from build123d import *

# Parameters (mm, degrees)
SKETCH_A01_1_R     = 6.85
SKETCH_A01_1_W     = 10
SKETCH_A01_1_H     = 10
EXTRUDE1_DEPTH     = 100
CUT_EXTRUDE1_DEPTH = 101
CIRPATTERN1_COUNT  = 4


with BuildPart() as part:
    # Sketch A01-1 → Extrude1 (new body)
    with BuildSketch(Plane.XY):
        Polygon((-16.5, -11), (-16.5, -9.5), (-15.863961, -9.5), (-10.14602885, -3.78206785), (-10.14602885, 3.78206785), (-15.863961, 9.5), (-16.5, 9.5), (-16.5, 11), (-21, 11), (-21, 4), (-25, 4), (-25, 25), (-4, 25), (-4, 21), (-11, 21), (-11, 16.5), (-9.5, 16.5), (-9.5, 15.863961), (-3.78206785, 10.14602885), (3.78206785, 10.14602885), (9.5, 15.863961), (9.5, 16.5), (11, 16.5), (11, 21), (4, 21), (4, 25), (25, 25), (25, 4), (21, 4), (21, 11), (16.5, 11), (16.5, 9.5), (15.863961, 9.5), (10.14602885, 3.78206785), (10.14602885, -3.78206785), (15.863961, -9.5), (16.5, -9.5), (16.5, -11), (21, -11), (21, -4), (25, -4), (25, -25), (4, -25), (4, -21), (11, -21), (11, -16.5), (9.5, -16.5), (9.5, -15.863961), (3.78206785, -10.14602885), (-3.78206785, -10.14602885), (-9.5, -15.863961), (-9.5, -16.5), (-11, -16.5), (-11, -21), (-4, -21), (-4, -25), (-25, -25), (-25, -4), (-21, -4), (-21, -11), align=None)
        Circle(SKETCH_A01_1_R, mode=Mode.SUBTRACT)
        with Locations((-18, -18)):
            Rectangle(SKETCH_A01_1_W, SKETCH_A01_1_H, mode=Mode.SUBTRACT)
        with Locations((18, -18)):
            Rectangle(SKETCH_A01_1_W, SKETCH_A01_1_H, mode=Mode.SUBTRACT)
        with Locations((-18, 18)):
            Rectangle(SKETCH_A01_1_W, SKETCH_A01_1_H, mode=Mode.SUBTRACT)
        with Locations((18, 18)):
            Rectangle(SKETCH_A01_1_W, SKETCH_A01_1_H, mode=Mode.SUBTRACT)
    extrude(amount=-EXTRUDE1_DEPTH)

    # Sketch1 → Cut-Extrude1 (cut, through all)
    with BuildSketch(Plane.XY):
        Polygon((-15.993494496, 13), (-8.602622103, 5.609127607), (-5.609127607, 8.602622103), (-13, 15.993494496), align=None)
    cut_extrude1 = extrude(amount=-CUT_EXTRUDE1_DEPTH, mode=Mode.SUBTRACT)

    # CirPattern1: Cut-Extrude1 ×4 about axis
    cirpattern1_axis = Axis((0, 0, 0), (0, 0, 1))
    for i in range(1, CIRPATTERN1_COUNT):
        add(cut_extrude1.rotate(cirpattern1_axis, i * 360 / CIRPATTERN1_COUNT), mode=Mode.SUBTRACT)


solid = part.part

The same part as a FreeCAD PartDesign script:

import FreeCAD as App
import Part
import Sketcher
Q = App.Units.Quantity

doc = App.newDocument("Part")
body = doc.addObject("PartDesign::Body", "Body")

sketch1 = body.newObject("Sketcher::SketchObject", "Sketch")
sketch1.AttachmentSupport = (doc.getObject("XY_Plane"), [""])
sketch1.MapMode = "FlatFace"
sketch1.addGeometry([
    Part.LineSegment(App.Vector(-16.5, -9.5, 0), App.Vector(-16.5, -11, 0)),
    Part.LineSegment(App.Vector(-16.5, -11, 0), App.Vector(-21, -11, 0)),
    Part.LineSegment(App.Vector(-21, -11, 0), App.Vector(-21, -4, 0)),
    Part.LineSegment(App.Vector(-21, -4, 0), App.Vector(-25, -4, 0)),
    Part.LineSegment(App.Vector(-25, -4, 0), App.Vector(-25, -25, 0)),
    Part.LineSegment(App.Vector(-25, -25, 0), App.Vector(-4, -25, 0)),
    Part.LineSegment(App.Vector(-4, -25, 0), App.Vector(-4, -21, 0)),
    Part.LineSegment(App.Vector(-4, -21, 0), App.Vector(-11, -21, 0)),
    Part.LineSegment(App.Vector(-11, -21, 0), App.Vector(-11, -16.5, 0)),
    Part.LineSegment(App.Vector(-11, -16.5, 0), App.Vector(-9.5, -16.5, 0)),
    Part.LineSegment(App.Vector(-9.5, -16.5, 0), App.Vector(-9.5, -15.9, 0)),
    Part.LineSegment(App.Vector(-9.5, -15.9, 0), App.Vector(-3.8, -10.1, 0)),
    Part.LineSegment(App.Vector(-3.8, -10.1, 0), App.Vector(3.8, -10.1, 0)),
    Part.LineSegment(App.Vector(3.8, -10.1, 0), App.Vector(9.5, -15.9, 0)),
    Part.LineSegment(App.Vector(9.5, -15.9, 0), App.Vector(9.5, -16.5, 0)),
    Part.LineSegment(App.Vector(9.5, -16.5, 0), App.Vector(11, -16.5, 0)),
    Part.LineSegment(App.Vector(11, -16.5, 0), App.Vector(11, -21, 0)),
    Part.LineSegment(App.Vector(11, -21, 0), App.Vector(4, -21, 0)),
    Part.LineSegment(App.Vector(4, -21, 0), App.Vector(4, -25, 0)),
    Part.LineSegment(App.Vector(4, -25, 0), App.Vector(25, -25, 0)),
    Part.LineSegment(App.Vector(25, -25, 0), App.Vector(25, -4, 0)),
    Part.LineSegment(App.Vector(25, -4, 0), App.Vector(21, -4, 0)),
    Part.LineSegment(App.Vector(21, -4, 0), App.Vector(21, -11, 0)),
    Part.LineSegment(App.Vector(21, -11, 0), App.Vector(16.5, -11, 0)),
    Part.LineSegment(App.Vector(16.5, -11, 0), App.Vector(16.5, -9.5, 0)),
    Part.LineSegment(App.Vector(16.5, -9.5, 0), App.Vector(15.9, -9.5, 0)),
    Part.LineSegment(App.Vector(15.9, -9.5, 0), App.Vector(10.1, -3.8, 0)),
    Part.LineSegment(App.Vector(10.1, -3.8, 0), App.Vector(10.1, 3.8, 0)),
    Part.LineSegment(App.Vector(10.1, 3.8, 0), App.Vector(15.9, 9.5, 0)),
    Part.LineSegment(App.Vector(15.9, 9.5, 0), App.Vector(16.5, 9.5, 0)),
    Part.LineSegment(App.Vector(16.5, 9.5, 0), App.Vector(16.5, 11, 0)),
    Part.LineSegment(App.Vector(16.5, 11, 0), App.Vector(21, 11, 0)),
    Part.LineSegment(App.Vector(21, 11, 0), App.Vector(21, 4, 0)),
    Part.LineSegment(App.Vector(21, 4, 0), App.Vector(25, 4, 0)),
    Part.LineSegment(App.Vector(25, 4, 0), App.Vector(25, 25, 0)),
    Part.LineSegment(App.Vector(25, 25, 0), App.Vector(4, 25, 0)),
    Part.LineSegment(App.Vector(4, 25, 0), App.Vector(4, 21, 0)),
    Part.LineSegment(App.Vector(4, 21, 0), App.Vector(11, 21, 0)),
    Part.LineSegment(App.Vector(11, 21, 0), App.Vector(11, 16.5, 0)),
    Part.LineSegment(App.Vector(11, 16.5, 0), App.Vector(9.5, 16.5, 0)),
    Part.LineSegment(App.Vector(9.5, 16.5, 0), App.Vector(9.5, 15.9, 0)),
    Part.LineSegment(App.Vector(9.5, 15.9, 0), App.Vector(3.8, 10.1, 0)),
    Part.LineSegment(App.Vector(3.8, 10.1, 0), App.Vector(-3.8, 10.1, 0)),
    Part.LineSegment(App.Vector(-3.8, 10.1, 0), App.Vector(-9.5, 15.9, 0)),
    Part.LineSegment(App.Vector(-9.5, 15.9, 0), App.Vector(-9.5, 16.5, 0)),
    Part.LineSegment(App.Vector(-9.5, 16.5, 0), App.Vector(-11, 16.5, 0)),
    Part.LineSegment(App.Vector(-11, 16.5, 0), App.Vector(-11, 21, 0)),
    Part.LineSegment(App.Vector(-11, 21, 0), App.Vector(-4, 21, 0)),
    Part.LineSegment(App.Vector(-4, 21, 0), App.Vector(-4, 25, 0)),
    Part.LineSegment(App.Vector(-4, 25, 0), App.Vector(-25, 25, 0)),
    Part.LineSegment(App.Vector(-25, 25, 0), App.Vector(-25, 4, 0)),
    Part.LineSegment(App.Vector(-25, 4, 0), App.Vector(-21, 4, 0)),
    Part.LineSegment(App.Vector(-21, 4, 0), App.Vector(-21, 11, 0)),
    Part.LineSegment(App.Vector(-21, 11, 0), App.Vector(-16.5, 11, 0)),
    Part.LineSegment(App.Vector(-16.5, 11, 0), App.Vector(-16.5, 9.5, 0)),
    Part.LineSegment(App.Vector(-16.5, 9.5, 0), App.Vector(-15.9, 9.5, 0)),
    Part.LineSegment(App.Vector(-15.9, 9.5, 0), App.Vector(-10.1, 3.8, 0)),
    Part.LineSegment(App.Vector(-10.1, 3.8, 0), App.Vector(-10.1, -3.8, 0)),
    Part.LineSegment(App.Vector(-10.1, -3.8, 0), App.Vector(-15.9, -9.5, 0)),
    Part.LineSegment(App.Vector(-15.9, -9.5, 0), App.Vector(-16.5, -9.5, 0)),
    Part.LineSegment(App.Vector(13, -23, 0), App.Vector(13, -13, 0)),
    Part.LineSegment(App.Vector(13, -13, 0), App.Vector(23, -13, 0)),
    Part.LineSegment(App.Vector(23, -13, 0), App.Vector(23, -23, 0)),
    Part.LineSegment(App.Vector(23, -23, 0), App.Vector(13, -23, 0)),
    Part.LineSegment(App.Vector(-23, -23, 0), App.Vector(-23, -13, 0)),
    Part.LineSegment(App.Vector(-23, -13, 0), App.Vector(-13, -13, 0)),
    Part.LineSegment(App.Vector(-13, -13, 0), App.Vector(-13, -23, 0)),
    Part.LineSegment(App.Vector(-13, -23, 0), App.Vector(-23, -23, 0)),
    Part.LineSegment(App.Vector(13, 13, 0), App.Vector(13, 23, 0)),
    Part.LineSegment(App.Vector(13, 23, 0), App.Vector(23, 23, 0)),
    Part.LineSegment(App.Vector(23, 23, 0), App.Vector(23, 13, 0)),
    Part.LineSegment(App.Vector(23, 13, 0), App.Vector(13, 13, 0)),
    Part.Circle(App.Vector(0, 0, 0), App.Vector(0, 0, 1), 6.8),
    Part.LineSegment(App.Vector(-23, 13, 0), App.Vector(-23, 23, 0)),
    Part.LineSegment(App.Vector(-23, 23, 0), App.Vector(-13, 23, 0)),
    Part.LineSegment(App.Vector(-13, 23, 0), App.Vector(-13, 13, 0)),
    Part.LineSegment(App.Vector(-13, 13, 0), App.Vector(-23, 13, 0)),
], False)
sketch1.addConstraint([
    Sketcher.Constraint("Coincident", 0, 2, 1, 1),
    Sketcher.Constraint("Coincident", 1, 2, 2, 1),
    Sketcher.Constraint("Coincident", 2, 2, 3, 1),
    Sketcher.Constraint("Coincident", 3, 2, 4, 1),
    Sketcher.Constraint("Coincident", 4, 2, 5, 1),
    Sketcher.Constraint("Coincident", 5, 2, 6, 1),
    Sketcher.Constraint("Coincident", 6, 2, 7, 1),
    Sketcher.Constraint("Coincident", 7, 2, 8, 1),
    Sketcher.Constraint("Coincident", 8, 2, 9, 1),
    Sketcher.Constraint("Coincident", 9, 2, 10, 1),
    Sketcher.Constraint("Coincident", 10, 2, 11, 1),
    Sketcher.Constraint("Coincident", 11, 2, 12, 1),
    Sketcher.Constraint("Coincident", 12, 2, 13, 1),
    Sketcher.Constraint("Coincident", 13, 2, 14, 1),
    Sketcher.Constraint("Coincident", 14, 2, 15, 1),
    Sketcher.Constraint("Coincident", 15, 2, 16, 1),
    Sketcher.Constraint("Coincident", 16, 2, 17, 1),
    Sketcher.Constraint("Coincident", 17, 2, 18, 1),
    Sketcher.Constraint("Coincident", 18, 2, 19, 1),
    Sketcher.Constraint("Coincident", 19, 2, 20, 1),
    Sketcher.Constraint("Coincident", 20, 2, 21, 1),
    Sketcher.Constraint("Coincident", 21, 2, 22, 1),
    Sketcher.Constraint("Coincident", 22, 2, 23, 1),
    Sketcher.Constraint("Coincident", 23, 2, 24, 1),
    Sketcher.Constraint("Coincident", 24, 2, 25, 1),
    Sketcher.Constraint("Coincident", 25, 2, 26, 1),
    Sketcher.Constraint("Coincident", 26, 2, 27, 1),
    Sketcher.Constraint("Coincident", 27, 2, 28, 1),
    Sketcher.Constraint("Coincident", 28, 2, 29, 1),
    Sketcher.Constraint("Coincident", 29, 2, 30, 1),
    Sketcher.Constraint("Coincident", 30, 2, 31, 1),
    Sketcher.Constraint("Coincident", 31, 2, 32, 1),
    Sketcher.Constraint("Coincident", 32, 2, 33, 1),
    Sketcher.Constraint("Coincident", 33, 2, 34, 1),
    Sketcher.Constraint("Coincident", 34, 2, 35, 1),
    Sketcher.Constraint("Coincident", 35, 2, 36, 1),
    Sketcher.Constraint("Coincident", 36, 2, 37, 1),
    Sketcher.Constraint("Coincident", 37, 2, 38, 1),
    Sketcher.Constraint("Coincident", 38, 2, 39, 1),
    Sketcher.Constraint("Coincident", 39, 2, 40, 1),
    Sketcher.Constraint("Coincident", 40, 2, 41, 1),
    Sketcher.Constraint("Coincident", 41, 2, 42, 1),
    Sketcher.Constraint("Coincident", 42, 2, 43, 1),
    Sketcher.Constraint("Coincident", 43, 2, 44, 1),
    Sketcher.Constraint("Coincident", 44, 2, 45, 1),
    Sketcher.Constraint("Coincident", 45, 2, 46, 1),
    Sketcher.Constraint("Coincident", 46, 2, 47, 1),
    Sketcher.Constraint("Coincident", 47, 2, 48, 1),
    Sketcher.Constraint("Coincident", 48, 2, 49, 1),
    Sketcher.Constraint("Coincident", 49, 2, 50, 1),
    Sketcher.Constraint("Coincident", 50, 2, 51, 1),
    Sketcher.Constraint("Coincident", 51, 2, 52, 1),
    Sketcher.Constraint("Coincident", 52, 2, 53, 1),
    Sketcher.Constraint("Coincident", 53, 2, 54, 1),
    Sketcher.Constraint("Coincident", 54, 2, 55, 1),
    Sketcher.Constraint("Coincident", 55, 2, 56, 1),
    Sketcher.Constraint("Coincident", 56, 2, 57, 1),
    Sketcher.Constraint("Coincident", 57, 2, 58, 1),
    Sketcher.Constraint("Coincident", 58, 2, 59, 1),
    Sketcher.Constraint("Coincident", 59, 2, 0, 1),
    Sketcher.Constraint("Coincident", 60, 2, 61, 1),
    Sketcher.Constraint("Coincident", 61, 2, 62, 1),
    Sketcher.Constraint("Coincident", 62, 2, 63, 1),
    Sketcher.Constraint("Coincident", 63, 2, 60, 1),
    Sketcher.Constraint("Coincident", 64, 2, 65, 1),
    Sketcher.Constraint("Coincident", 65, 2, 66, 1),
    Sketcher.Constraint("Coincident", 66, 2, 67, 1),
    Sketcher.Constraint("Coincident", 67, 2, 64, 1),
    Sketcher.Constraint("Coincident", 68, 2, 69, 1),
    Sketcher.Constraint("Coincident", 69, 2, 70, 1),
    Sketcher.Constraint("Coincident", 70, 2, 71, 1),
    Sketcher.Constraint("Coincident", 71, 2, 68, 1),
    Sketcher.Constraint("Coincident", 73, 2, 74, 1),
    Sketcher.Constraint("Coincident", 74, 2, 75, 1),
    Sketcher.Constraint("Coincident", 75, 2, 76, 1),
    Sketcher.Constraint("Coincident", 76, 2, 73, 1),
    Sketcher.Constraint("Vertical", 0),
    Sketcher.Constraint("Horizontal", 1),
    Sketcher.Constraint("Vertical", 2),
    Sketcher.Constraint("Horizontal", 3),
    Sketcher.Constraint("Vertical", 4),
    Sketcher.Constraint("Horizontal", 5),
    Sketcher.Constraint("Vertical", 6),
    Sketcher.Constraint("Horizontal", 7),
    Sketcher.Constraint("Vertical", 8),
    Sketcher.Constraint("Horizontal", 9),
    Sketcher.Constraint("Vertical", 10),
    Sketcher.Constraint("Horizontal", 12),
    Sketcher.Constraint("Vertical", 14),
    Sketcher.Constraint("Horizontal", 15),
    Sketcher.Constraint("Vertical", 16),
    Sketcher.Constraint("Horizontal", 17),
    Sketcher.Constraint("Vertical", 18),
    Sketcher.Constraint("Horizontal", 19),
    Sketcher.Constraint("Vertical", 20),
    Sketcher.Constraint("Horizontal", 21),
    Sketcher.Constraint("Vertical", 22),
    Sketcher.Constraint("Horizontal", 23),
    Sketcher.Constraint("Vertical", 24),
    Sketcher.Constraint("Horizontal", 25),
    Sketcher.Constraint("Vertical", 27),
    Sketcher.Constraint("Horizontal", 29),
    Sketcher.Constraint("Vertical", 30),
    Sketcher.Constraint("Horizontal", 31),
    Sketcher.Constraint("Vertical", 32),
    Sketcher.Constraint("Horizontal", 33),
    Sketcher.Constraint("Vertical", 34),
    Sketcher.Constraint("Horizontal", 35),
    Sketcher.Constraint("Vertical", 36),
    Sketcher.Constraint("Horizontal", 37),
    Sketcher.Constraint("Vertical", 38),
    Sketcher.Constraint("Horizontal", 39),
    Sketcher.Constraint("Vertical", 40),
    Sketcher.Constraint("Horizontal", 42),
    Sketcher.Constraint("Vertical", 44),
    Sketcher.Constraint("Horizontal", 45),
    Sketcher.Constraint("Vertical", 46),
    Sketcher.Constraint("Horizontal", 47),
    Sketcher.Constraint("Vertical", 48),
    Sketcher.Constraint("Horizontal", 49),
    Sketcher.Constraint("Vertical", 50),
    Sketcher.Constraint("Horizontal", 51),
    Sketcher.Constraint("Vertical", 52),
    Sketcher.Constraint("Horizontal", 53),
    Sketcher.Constraint("Vertical", 54),
    Sketcher.Constraint("Horizontal", 55),
    Sketcher.Constraint("Vertical", 57),
    Sketcher.Constraint("Horizontal", 59),
    Sketcher.Constraint("Vertical", 60),
    Sketcher.Constraint("Horizontal", 61),
    Sketcher.Constraint("Vertical", 62),
    Sketcher.Constraint("Horizontal", 63),
    Sketcher.Constraint("Vertical", 64),
    Sketcher.Constraint("Horizontal", 65),
    Sketcher.Constraint("Vertical", 66),
    Sketcher.Constraint("Horizontal", 67),
    Sketcher.Constraint("Vertical", 68),
    Sketcher.Constraint("Horizontal", 69),
    Sketcher.Constraint("Vertical", 70),
    Sketcher.Constraint("Horizontal", 71),
    Sketcher.Constraint("Vertical", 73),
    Sketcher.Constraint("Horizontal", 74),
    Sketcher.Constraint("Vertical", 75),
    Sketcher.Constraint("Horizontal", 76),
    Sketcher.Constraint("Coincident", 72, 3, -1, 1),
    Sketcher.Constraint("Symmetric", 0, 2, 30, 2, -1, 1),
    Sketcher.Constraint("Symmetric", 2, 2, 32, 2, -1, 1),
    Sketcher.Constraint("Symmetric", 4, 2, 34, 2, -1, 1),
    Sketcher.Constraint("Symmetric", 6, 2, 36, 2, -1, 1),
    Sketcher.Constraint("Symmetric", 8, 2, 38, 2, -1, 1),
    Sketcher.Constraint("Symmetric", 10, 2, 40, 2, -1, 1),
    Sketcher.Constraint("Symmetric", 11, 2, 41, 2, -1, 1),
    Sketcher.Constraint("Symmetric", 13, 2, 43, 2, -1, 1),
    Sketcher.Constraint("Symmetric", 15, 2, 45, 2, -1, 1),
    Sketcher.Constraint("Symmetric", 17, 2, 47, 2, -1, 1),
    Sketcher.Constraint("Symmetric", 19, 2, 49, 2, -1, 1),
    Sketcher.Constraint("Symmetric", 21, 2, 51, 2, -1, 1),
    Sketcher.Constraint("Symmetric", 23, 2, 53, 2, -1, 1),
    Sketcher.Constraint("Symmetric", 25, 2, 55, 2, -1, 1),
    Sketcher.Constraint("Symmetric", 26, 2, 56, 2, -1, 1),
    Sketcher.Constraint("Symmetric", 28, 2, 58, 2, -1, 1),
    Sketcher.Constraint("Symmetric", 66, 2, 68, 2, -1, 1),
    Sketcher.Constraint("Symmetric", 64, 2, 70, 2, -1, 1),
    Sketcher.Constraint("Symmetric", 62, 2, 73, 2, -1, 1),
    Sketcher.Constraint("Symmetric", 60, 2, 75, 2, -1, 1),
    Sketcher.Constraint("Symmetric", 10, 2, 13, 2, -2),
    Sketcher.Constraint("Symmetric", 8, 2, 15, 2, -2),
    Sketcher.Constraint("Symmetric", 6, 2, 17, 2, -2),
    Sketcher.Constraint("Symmetric", 4, 2, 19, 2, -2),
    Sketcher.Constraint("Symmetric", 2, 2, 21, 2, -2),
    Sketcher.Constraint("Symmetric", 0, 2, 23, 2, -2),
    Sketcher.Constraint("Symmetric", 28, 2, 55, 2, -2),
    Sketcher.Constraint("Symmetric", 61, 2, 64, 2, -2),
    Sketcher.Constraint("Symmetric", 63, 2, 66, 2, -2),
    Sketcher.Constraint("Perpendicular", 11, 13),
    Sketcher.Constraint("Parallel", 13, 26),
    Sketcher.Constraint("Perpendicular", 26, 28),
    Sketcher.Constraint("Perpendicular", 41, 43),
    Sketcher.Constraint("Perpendicular", 56, 58),
    Sketcher.Constraint("Horizontal", 27, 2, 56, 2),
    Sketcher.Constraint("Equal", 45, 0),
    Sketcher.Constraint("Equal", 47, 2),
    Sketcher.Constraint("Equal", 49, 4),
    Sketcher.Constraint("Equal", 51, 6),
    Sketcher.Constraint("Equal", 53, 8),
    Sketcher.Constraint("Equal", 59, 10),
    Sketcher.Constraint("Equal", 42, 27),
    Sketcher.Constraint("Equal", 76, 60),
    Sketcher.Constraint("Equal", 13, 26),
    Sketcher.Constraint("Diameter", 72, Q("13.7 mm")),
    Sketcher.Constraint("DistanceX", 3, 2, 3, 1, Q("4 mm")),
    Sketcher.Constraint("DistanceX", 5, 1, 5, 2, Q("21 mm")),
    Sketcher.Constraint("DistanceX", 7, 2, 7, 1, Q("7 mm")),
    Sketcher.Constraint("DistanceX", 61, 1, 61, 2, Q("10 mm")),
    Sketcher.Constraint("DistanceX", 1, 2, 1, 1, Q("4.5 mm")),
    Sketcher.Constraint("DistanceX", 9, 1, 9, 2, Q("1.5 mm")),
    Sketcher.Constraint("DistanceY", 0, 2, -1, 1, Q("11 mm")),
    Sketcher.Constraint("DistanceX", -1, 1, 60, 2, Q("13 mm")),
    Sketcher.Constraint("DistanceY", 60, 2, -1, 1, Q("13 mm")),
    Sketcher.Constraint("DistanceX", 25, 2, 25, 1, Q("0.636039 mm")),
    Sketcher.Constraint("DistanceX", 12, 1, 12, 2, Q("7.564136 mm")),
])
pad1 = body.newObject("PartDesign::Pad", "Pad")
pad1.Profile = sketch1
pad1.Length = 100
pad1.Reversed = True

sketch2 = body.newObject("Sketcher::SketchObject", "Sketch001")
sketch2.AttachmentSupport = (doc.getObject("XY_Plane"), [""])
sketch2.MapMode = "FlatFace"
sketch2.addGeometry([
    Part.LineSegment(App.Vector(-16, 13, 0), App.Vector(-8.6, 5.6, 0)),
    Part.LineSegment(App.Vector(-8.6, 5.6, 0), App.Vector(-5.6, 8.6, 0)),
    Part.LineSegment(App.Vector(-5.6, 8.6, 0), App.Vector(-13, 16, 0)),
    Part.LineSegment(App.Vector(-13, 16, 0), App.Vector(-16, 13, 0)),
], False)
sketch2.addConstraint([
    Sketcher.Constraint("Coincident", 0, 2, 1, 1),
    Sketcher.Constraint("Coincident", 1, 2, 2, 1),
    Sketcher.Constraint("Coincident", 2, 2, 3, 1),
    Sketcher.Constraint("Coincident", 3, 2, 0, 1),
    Sketcher.Constraint("Perpendicular", 0, 1),
    Sketcher.Constraint("Perpendicular", 1, 2),
    Sketcher.Constraint("Perpendicular", 2, 3),
    Sketcher.Constraint("Angle", 0, Q("-45 deg")),
    Sketcher.Constraint("DistanceX", 2, 2, -1, 1, Q("13 mm")),
    Sketcher.Constraint("DistanceY", -1, 1, 3, 2, Q("13 mm")),
    Sketcher.Constraint("Distance", 0, Q("10.452272 mm")),
    Sketcher.Constraint("Distance", 1, Q("4.233441 mm")),
])
pocket1 = body.newObject("PartDesign::Pocket", "Pocket")
pocket1.Profile = sketch2
pocket1.Type = "ThroughAll"
doc.recompute()

polarpattern = body.newObject("PartDesign::PolarPattern", "PolarPattern")
polarpattern.Originals = [pocket1]
polarpattern.Axis = (doc.getObject("Z_Axis"), [""])
polarpattern.Angle = 360
polarpattern.Occurrences = 4
body.Tip = polarpattern

doc.recompute()
